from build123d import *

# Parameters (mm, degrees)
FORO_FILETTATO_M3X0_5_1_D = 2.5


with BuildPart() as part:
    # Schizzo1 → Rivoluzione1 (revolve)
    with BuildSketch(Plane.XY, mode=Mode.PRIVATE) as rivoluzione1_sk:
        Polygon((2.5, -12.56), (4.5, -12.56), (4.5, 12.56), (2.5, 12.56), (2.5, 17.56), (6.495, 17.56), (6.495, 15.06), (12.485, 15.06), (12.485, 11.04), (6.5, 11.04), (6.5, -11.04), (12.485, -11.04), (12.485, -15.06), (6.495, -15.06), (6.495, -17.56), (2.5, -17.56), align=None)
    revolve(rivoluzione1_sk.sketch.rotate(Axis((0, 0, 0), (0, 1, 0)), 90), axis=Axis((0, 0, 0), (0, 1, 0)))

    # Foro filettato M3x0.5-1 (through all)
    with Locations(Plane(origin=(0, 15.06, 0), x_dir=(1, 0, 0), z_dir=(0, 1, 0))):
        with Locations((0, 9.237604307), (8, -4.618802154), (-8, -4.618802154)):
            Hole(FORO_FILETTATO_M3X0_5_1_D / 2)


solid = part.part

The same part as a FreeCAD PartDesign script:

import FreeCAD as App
import Part
import Sketcher

V = App.Vector

doc = App.newDocument("Part")
body = doc.addObject("PartDesign::Body", "Body")

# Sketch on XY plane
sketch1 = body.newObject("Sketcher::SketchObject", "Sketch")
sketch1.AttachmentSupport = (doc.getObject("XY_Plane"), [""])
sketch1.MapMode = "FlatFace"
sketch1.addGeometry([
    Part.LineSegment(V(4.5, -12.6, 0), V(2.5, -12.6, 0)),  # 0
    Part.LineSegment(V(2.5, -12.6, 0), V(2.5, -17.6, 0)),  # 1
    Part.LineSegment(V(2.5, -17.6, 0), V(6.5, -17.6, 0)),  # 2
    Part.LineSegment(V(6.5, -17.6, 0), V(6.5, -15.1, 0)),  # 3
    Part.LineSegment(V(6.5, -15.1, 0), V(12.5, -15.1, 0)),  # 4
    Part.LineSegment(V(12.5, -15.1, 0), V(12.5, -11, 0)),  # 5
    Part.LineSegment(V(12.5, -11, 0), V(6.5, -11, 0)),  # 6
    Part.LineSegment(V(6.5, -11, 0), V(6.5, 11, 0)),  # 7
    Part.LineSegment(V(6.5, 11, 0), V(12.5, 11, 0)),  # 8
    Part.LineSegment(V(12.5, 11, 0), V(12.5, 15.1, 0)),  # 9
    Part.LineSegment(V(12.5, 15.1, 0), V(6.5, 15.1, 0)),  # 10
    Part.LineSegment(V(6.5, 15.1, 0), V(6.5, 17.6, 0)),  # 11
    Part.LineSegment(V(6.5, 17.6, 0), V(2.5, 17.6, 0)),  # 12
    Part.LineSegment(V(2.5, 17.6, 0), V(2.5, 12.6, 0)),  # 13
    Part.LineSegment(V(2.5, 12.6, 0), V(4.5, 12.6, 0)),  # 14
    Part.LineSegment(V(4.5, 12.6, 0), V(4.5, -12.6, 0)),  # 15
], False)
sketch1.addConstraint([
    Sketcher.Constraint("Coincident", 0, 2, 1, 1),
    Sketcher.Constraint("Coincident", 1, 2, 2, 1),
    Sketcher.Constraint("Coincident", 2, 2, 3, 1),
    Sketcher.Constraint("Coincident", 3, 2, 4, 1),
    Sketcher.Constraint("Coincident", 4, 2, 5, 1),
    Sketcher.Constraint("Coincident", 5, 2, 6, 1),
    Sketcher.Constraint("Coincident", 6, 2, 7, 1),
    Sketcher.Constraint("Coincident", 7, 2, 8, 1),
    Sketcher.Constraint("Coincident", 8, 2, 9, 1),
    Sketcher.Constraint("Coincident", 9, 2, 10, 1),
    Sketcher.Constraint("Coincident", 10, 2, 11, 1),
    Sketcher.Constraint("Coincident", 11, 2, 12, 1),
    Sketcher.Constraint("Coincident", 12, 2, 13, 1),
    Sketcher.Constraint("Coincident", 13, 2, 14, 1),
    Sketcher.Constraint("Coincident", 14, 2, 15, 1),
    Sketcher.Constraint("Coincident", 15, 2, 0, 1),
    Sketcher.Constraint("Horizontal", 0),
    Sketcher.Constraint("Vertical", 1),
    Sketcher.Constraint("Horizontal", 2),
    Sketcher.Constraint("Vertical", 3),
    Sketcher.Constraint("Horizontal", 4),
    Sketcher.Constraint("Vertical", 5),
    Sketcher.Constraint("Horizontal", 6),
    Sketcher.Constraint("Vertical", 7),
    Sketcher.Constraint("Horizontal", 8),
    Sketcher.Constraint("Vertical", 9),
    Sketcher.Constraint("Horizontal", 10),
    Sketcher.Constraint("Vertical", 11),
    Sketcher.Constraint("Horizontal", 12),
    Sketcher.Constraint("Vertical", 13),
    Sketcher.Constraint("Horizontal", 14),
    Sketcher.Constraint("Vertical", 15),
    Sketcher.Constraint("Symmetric", 5, 2, 8, 2, -1),
    Sketcher.Constraint("Symmetric", 3, 2, 10, 2, -1),
    Sketcher.Constraint("Symmetric", 1, 2, 12, 2, -1),
    Sketcher.Constraint("Equal", 1, 13),
    Sketcher.Constraint("DistanceX", 0, 2, 0, 1, 2.0),
    Sketcher.Constraint("DistanceY", 1, 2, 1, 1, 5.0),
    Sketcher.Constraint("DistanceY", 3, 1, 3, 2, 2.5),
    Sketcher.Constraint("DistanceX", 0, 2, 6, 2, 4.0),
    Sketcher.Constraint("DistanceX", 4, 1, 4, 2, 5.99),
    Sketcher.Constraint("DistanceY", 5, 1, 5, 2, 4.02),
    Sketcher.Constraint("DistanceY", 7, 1, 7, 2, 22.08),
    Sketcher.Constraint("DistanceX", -1, 1, 0, 2, 2.5),
    Sketcher.Constraint("DistanceX", 2, 1, 2, 2, 3.995),
])
revolution = body.newObject("PartDesign::Revolution", "Revolution")
revolution.Profile = sketch1
revolution.ReferenceAxis = (sketch1, ["V_Axis"])
revolution.Angle = 360

# Sketch on XZ plane
sketch2 = body.newObject("Sketcher::SketchObject", "Sketch001")
sketch2.AttachmentSupport = (doc.getObject("XZ_Plane"), [""])
sketch2.MapMode = "FlatFace"
sketch2.AttachmentOffset = App.Placement(V(0, 0, -15.06), App.Rotation())
sketch2.addGeometry([
    Part.Circle(V(0, -9.2, 0), V(0, 0, 1), 1.2),
    Part.Circle(V(8, 4.6, 0), V(0, 0, 1), 1.2),
    Part.Circle(V(-8, 4.6, 0), V(0, 0, 1), 1.2),
], False)
sketch2.addConstraint([
    Sketcher.Constraint("Equal", 0, 1),
    Sketcher.Constraint("Equal", 1, 2),
    Sketcher.Constraint("Symmetric", 1, 3, 2, 3, -2),
    Sketcher.Constraint("PointOnObject", 0, 3, -2),
    Sketcher.Constraint("Diameter", 0, 2.5),
    Sketcher.Constraint("DistanceX", -1, 1, 1, 3, 8.0),
    Sketcher.Constraint("DistanceY", 0, 3, -1, 1, 9.237604),
    Sketcher.Constraint("DistanceY", -1, 1, 1, 3, 4.618802),
])
doc.recompute()
hole = body.newObject("PartDesign::Hole", "Hole")
hole.Profile = sketch2
hole.ThreadType = "None"
hole.Diameter = 2.5
hole.DepthType = "ThroughAll"
hole.Reversed = True

doc.recompute()
